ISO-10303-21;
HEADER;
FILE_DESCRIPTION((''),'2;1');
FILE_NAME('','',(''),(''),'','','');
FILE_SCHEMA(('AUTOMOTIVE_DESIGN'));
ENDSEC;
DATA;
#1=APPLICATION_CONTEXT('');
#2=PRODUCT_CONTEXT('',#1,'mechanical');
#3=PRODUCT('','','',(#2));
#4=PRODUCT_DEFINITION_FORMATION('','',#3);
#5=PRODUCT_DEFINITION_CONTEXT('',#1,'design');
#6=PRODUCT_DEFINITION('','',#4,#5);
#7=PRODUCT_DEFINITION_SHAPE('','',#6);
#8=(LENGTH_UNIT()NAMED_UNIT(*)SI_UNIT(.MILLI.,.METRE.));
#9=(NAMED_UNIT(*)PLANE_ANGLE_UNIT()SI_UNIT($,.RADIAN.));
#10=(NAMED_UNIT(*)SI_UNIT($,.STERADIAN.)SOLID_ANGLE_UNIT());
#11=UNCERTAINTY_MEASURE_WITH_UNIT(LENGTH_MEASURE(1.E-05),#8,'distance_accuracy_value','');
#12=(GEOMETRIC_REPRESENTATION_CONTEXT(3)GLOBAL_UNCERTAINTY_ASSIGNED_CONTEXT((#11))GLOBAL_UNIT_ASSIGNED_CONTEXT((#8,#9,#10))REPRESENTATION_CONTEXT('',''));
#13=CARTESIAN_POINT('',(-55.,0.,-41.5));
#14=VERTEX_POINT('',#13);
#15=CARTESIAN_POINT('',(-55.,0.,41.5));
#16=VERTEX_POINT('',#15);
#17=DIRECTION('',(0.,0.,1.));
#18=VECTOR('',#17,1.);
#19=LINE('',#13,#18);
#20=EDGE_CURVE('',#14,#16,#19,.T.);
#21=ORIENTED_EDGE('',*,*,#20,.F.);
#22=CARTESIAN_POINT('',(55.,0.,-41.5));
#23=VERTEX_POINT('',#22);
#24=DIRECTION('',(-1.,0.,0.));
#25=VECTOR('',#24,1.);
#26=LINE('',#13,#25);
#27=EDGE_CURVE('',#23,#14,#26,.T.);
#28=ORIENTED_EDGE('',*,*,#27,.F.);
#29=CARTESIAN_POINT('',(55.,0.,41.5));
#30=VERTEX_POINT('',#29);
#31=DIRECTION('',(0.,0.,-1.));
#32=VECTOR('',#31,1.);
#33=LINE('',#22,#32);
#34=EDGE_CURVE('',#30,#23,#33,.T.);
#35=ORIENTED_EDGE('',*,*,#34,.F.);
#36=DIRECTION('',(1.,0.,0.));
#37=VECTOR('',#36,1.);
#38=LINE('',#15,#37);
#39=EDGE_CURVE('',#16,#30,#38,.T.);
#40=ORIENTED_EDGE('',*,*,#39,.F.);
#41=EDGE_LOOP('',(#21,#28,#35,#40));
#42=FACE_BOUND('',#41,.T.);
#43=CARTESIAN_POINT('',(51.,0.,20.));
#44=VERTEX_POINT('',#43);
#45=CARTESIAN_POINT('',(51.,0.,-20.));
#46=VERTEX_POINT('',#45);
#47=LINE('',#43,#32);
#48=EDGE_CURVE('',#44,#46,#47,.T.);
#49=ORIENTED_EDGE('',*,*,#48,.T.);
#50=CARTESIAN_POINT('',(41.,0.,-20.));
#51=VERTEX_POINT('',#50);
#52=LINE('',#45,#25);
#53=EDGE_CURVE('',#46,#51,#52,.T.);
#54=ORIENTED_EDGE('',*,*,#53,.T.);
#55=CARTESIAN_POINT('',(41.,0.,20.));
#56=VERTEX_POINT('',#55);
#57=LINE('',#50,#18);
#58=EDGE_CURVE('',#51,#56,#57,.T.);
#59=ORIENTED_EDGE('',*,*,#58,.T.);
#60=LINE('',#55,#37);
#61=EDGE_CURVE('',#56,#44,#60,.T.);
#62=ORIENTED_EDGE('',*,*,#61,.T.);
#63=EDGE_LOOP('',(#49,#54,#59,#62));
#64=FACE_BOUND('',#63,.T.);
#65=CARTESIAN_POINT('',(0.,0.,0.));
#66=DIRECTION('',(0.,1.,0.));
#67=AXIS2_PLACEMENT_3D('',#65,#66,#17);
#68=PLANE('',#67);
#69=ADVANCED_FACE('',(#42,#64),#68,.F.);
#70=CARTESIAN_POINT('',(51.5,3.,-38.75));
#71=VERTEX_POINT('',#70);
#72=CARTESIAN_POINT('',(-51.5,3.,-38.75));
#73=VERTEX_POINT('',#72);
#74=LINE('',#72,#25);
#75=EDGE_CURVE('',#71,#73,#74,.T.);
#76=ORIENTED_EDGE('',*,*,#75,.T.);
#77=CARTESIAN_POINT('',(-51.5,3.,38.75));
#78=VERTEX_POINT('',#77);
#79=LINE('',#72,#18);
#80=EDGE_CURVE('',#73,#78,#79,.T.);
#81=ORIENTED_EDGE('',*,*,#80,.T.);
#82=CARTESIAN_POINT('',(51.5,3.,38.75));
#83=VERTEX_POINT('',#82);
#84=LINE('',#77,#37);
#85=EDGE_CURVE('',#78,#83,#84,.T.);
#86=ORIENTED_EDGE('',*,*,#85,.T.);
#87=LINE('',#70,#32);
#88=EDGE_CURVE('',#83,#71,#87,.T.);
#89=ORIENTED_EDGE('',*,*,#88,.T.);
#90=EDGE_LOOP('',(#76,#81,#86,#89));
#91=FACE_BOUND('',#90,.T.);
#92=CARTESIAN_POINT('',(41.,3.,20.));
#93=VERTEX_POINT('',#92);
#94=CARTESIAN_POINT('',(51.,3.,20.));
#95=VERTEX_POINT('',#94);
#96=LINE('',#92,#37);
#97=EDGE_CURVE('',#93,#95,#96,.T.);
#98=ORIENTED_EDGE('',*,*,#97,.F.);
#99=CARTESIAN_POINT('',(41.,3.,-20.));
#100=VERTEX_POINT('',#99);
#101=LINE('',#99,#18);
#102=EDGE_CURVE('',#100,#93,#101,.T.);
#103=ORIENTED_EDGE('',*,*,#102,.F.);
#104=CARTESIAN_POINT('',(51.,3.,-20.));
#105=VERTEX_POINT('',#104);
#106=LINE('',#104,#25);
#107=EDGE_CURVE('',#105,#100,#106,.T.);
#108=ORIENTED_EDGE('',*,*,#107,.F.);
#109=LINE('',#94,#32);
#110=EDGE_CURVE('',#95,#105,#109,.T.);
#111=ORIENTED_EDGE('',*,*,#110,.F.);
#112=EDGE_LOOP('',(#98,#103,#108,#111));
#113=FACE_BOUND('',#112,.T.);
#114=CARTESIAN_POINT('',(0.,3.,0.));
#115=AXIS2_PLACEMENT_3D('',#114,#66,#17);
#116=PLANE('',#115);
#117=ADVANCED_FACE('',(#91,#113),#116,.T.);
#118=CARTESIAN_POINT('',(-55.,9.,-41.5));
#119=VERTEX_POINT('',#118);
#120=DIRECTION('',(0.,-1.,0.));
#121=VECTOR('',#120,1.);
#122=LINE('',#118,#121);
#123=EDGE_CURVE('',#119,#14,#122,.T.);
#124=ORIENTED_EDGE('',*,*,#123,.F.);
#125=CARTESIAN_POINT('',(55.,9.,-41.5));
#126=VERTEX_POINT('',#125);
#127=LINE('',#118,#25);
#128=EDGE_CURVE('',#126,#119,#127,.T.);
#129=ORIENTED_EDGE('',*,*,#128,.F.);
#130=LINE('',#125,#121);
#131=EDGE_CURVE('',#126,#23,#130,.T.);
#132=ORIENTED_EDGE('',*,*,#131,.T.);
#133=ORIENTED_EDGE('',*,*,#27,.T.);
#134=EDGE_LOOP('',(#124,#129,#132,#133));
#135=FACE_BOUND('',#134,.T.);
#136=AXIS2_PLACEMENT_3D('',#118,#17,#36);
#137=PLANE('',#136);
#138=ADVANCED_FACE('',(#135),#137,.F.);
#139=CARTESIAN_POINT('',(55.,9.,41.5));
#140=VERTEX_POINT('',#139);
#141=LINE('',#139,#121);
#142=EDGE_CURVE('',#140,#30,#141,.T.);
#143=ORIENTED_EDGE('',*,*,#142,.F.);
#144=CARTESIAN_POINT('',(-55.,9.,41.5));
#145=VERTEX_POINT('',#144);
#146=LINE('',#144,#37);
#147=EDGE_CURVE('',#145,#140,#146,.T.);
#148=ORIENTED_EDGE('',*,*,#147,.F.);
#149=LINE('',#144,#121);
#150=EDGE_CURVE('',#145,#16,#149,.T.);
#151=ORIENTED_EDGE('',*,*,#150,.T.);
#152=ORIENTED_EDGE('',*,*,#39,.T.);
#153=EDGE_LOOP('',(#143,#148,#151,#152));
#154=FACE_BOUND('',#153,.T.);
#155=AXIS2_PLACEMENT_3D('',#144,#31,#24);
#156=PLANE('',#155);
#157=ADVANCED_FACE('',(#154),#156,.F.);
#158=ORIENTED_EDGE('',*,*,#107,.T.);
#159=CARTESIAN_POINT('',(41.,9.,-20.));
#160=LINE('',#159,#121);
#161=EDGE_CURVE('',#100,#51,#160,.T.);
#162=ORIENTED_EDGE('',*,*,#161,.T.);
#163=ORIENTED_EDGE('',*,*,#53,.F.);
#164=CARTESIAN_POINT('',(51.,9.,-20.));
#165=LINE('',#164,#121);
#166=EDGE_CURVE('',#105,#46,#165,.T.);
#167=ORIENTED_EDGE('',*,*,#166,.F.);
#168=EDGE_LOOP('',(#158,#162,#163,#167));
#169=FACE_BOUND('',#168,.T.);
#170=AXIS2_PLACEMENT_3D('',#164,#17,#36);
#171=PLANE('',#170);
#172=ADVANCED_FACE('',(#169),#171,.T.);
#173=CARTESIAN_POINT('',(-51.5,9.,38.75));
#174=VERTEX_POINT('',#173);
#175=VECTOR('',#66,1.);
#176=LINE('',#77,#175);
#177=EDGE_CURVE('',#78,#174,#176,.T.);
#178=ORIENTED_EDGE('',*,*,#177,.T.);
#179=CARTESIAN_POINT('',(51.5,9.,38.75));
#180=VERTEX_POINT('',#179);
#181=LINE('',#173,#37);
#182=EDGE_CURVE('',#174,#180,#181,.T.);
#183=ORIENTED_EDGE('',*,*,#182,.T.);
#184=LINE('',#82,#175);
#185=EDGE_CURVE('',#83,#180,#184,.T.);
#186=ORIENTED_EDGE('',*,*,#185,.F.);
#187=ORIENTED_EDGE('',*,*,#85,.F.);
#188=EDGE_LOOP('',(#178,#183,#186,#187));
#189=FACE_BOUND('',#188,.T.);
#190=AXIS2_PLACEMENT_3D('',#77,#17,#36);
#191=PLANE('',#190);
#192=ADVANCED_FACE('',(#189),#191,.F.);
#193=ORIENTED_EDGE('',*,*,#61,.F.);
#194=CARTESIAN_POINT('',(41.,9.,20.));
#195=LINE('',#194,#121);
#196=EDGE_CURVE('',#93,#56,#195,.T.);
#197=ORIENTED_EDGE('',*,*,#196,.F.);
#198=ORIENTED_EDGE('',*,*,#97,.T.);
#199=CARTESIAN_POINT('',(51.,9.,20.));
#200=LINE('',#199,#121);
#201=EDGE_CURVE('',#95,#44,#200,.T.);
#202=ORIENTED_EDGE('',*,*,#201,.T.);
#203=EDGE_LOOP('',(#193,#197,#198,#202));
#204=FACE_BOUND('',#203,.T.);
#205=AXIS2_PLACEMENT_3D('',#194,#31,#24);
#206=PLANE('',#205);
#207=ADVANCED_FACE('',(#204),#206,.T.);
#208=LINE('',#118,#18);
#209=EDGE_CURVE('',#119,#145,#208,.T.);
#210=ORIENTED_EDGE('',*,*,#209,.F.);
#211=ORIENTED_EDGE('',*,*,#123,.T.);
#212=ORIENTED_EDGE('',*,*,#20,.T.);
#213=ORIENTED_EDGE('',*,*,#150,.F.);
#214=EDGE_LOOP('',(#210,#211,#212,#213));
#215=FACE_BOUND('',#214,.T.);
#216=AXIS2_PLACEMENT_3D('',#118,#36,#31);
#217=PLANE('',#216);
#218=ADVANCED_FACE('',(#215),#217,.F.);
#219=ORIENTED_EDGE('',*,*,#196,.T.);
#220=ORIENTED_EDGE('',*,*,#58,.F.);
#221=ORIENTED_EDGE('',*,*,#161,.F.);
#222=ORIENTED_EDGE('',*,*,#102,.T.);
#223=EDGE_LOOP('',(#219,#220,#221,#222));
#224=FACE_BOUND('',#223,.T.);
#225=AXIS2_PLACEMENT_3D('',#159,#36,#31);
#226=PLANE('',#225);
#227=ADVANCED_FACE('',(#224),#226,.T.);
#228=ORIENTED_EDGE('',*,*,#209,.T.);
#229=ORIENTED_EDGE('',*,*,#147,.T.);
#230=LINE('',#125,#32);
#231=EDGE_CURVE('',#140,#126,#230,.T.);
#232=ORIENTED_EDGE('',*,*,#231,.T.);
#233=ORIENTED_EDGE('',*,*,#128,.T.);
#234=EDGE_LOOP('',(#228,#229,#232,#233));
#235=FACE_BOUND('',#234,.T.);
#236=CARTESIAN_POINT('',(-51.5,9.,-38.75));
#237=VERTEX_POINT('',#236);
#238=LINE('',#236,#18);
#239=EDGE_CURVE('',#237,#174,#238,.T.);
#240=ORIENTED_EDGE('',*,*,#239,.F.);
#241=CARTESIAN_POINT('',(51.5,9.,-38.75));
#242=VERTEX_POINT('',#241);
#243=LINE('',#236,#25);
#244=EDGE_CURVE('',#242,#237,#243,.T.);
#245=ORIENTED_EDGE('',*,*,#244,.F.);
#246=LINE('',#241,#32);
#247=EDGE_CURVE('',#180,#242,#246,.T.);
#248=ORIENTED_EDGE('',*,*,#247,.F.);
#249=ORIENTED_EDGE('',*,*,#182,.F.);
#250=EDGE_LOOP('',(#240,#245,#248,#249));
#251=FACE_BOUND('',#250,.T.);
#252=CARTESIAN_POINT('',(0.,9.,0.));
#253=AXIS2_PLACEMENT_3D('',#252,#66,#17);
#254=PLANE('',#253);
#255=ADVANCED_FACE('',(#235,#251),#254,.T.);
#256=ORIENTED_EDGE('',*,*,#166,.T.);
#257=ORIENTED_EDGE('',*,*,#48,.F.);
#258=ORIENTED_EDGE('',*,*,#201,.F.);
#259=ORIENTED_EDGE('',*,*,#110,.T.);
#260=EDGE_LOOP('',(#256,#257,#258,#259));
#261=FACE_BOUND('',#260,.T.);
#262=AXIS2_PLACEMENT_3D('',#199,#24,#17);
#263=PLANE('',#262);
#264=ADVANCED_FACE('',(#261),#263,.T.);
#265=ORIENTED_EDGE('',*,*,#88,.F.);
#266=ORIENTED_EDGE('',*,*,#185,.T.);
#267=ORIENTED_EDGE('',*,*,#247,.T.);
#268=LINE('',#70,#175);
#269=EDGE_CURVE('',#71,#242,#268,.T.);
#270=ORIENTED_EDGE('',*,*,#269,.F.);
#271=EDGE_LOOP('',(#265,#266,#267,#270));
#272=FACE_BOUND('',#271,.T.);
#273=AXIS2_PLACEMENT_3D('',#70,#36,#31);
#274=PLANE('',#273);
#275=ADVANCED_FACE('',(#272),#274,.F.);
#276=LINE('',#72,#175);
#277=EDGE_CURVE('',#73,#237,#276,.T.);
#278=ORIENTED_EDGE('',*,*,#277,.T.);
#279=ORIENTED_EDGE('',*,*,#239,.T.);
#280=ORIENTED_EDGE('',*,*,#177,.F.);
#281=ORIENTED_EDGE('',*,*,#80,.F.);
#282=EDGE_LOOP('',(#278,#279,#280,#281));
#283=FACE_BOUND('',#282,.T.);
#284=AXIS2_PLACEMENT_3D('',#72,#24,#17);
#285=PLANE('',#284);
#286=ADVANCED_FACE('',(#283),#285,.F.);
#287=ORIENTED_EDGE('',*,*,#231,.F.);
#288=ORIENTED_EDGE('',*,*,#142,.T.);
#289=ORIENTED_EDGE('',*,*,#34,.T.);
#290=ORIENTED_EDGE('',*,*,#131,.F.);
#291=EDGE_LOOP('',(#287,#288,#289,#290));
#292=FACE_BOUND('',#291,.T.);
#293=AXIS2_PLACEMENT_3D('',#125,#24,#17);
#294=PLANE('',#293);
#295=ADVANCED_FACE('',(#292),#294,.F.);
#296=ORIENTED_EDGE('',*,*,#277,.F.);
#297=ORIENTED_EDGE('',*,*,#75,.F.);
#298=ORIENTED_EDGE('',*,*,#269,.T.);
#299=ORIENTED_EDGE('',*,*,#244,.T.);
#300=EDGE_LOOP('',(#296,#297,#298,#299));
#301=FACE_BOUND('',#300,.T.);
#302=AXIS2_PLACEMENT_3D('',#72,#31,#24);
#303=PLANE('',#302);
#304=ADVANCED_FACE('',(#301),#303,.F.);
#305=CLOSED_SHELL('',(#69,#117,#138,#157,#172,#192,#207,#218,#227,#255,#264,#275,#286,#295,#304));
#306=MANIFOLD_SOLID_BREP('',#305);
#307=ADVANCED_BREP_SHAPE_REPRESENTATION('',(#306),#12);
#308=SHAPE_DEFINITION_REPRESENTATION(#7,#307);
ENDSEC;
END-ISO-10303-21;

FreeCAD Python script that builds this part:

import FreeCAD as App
import Part
import Sketcher
Q = App.Units.Quantity


def add_polygon(sketch, points):
    """Adds a closed chain of lines whose ends are joined by coincident constraints."""
    first, n = sketch.GeometryCount, len(points)
    for a, b in zip(points, points[1:] + points[:1]):
        sketch.addGeometry(Part.LineSegment(App.Vector(*a, 0), App.Vector(*b, 0)), False)
    for i in range(n):
        sketch.addConstraint(Sketcher.Constraint("Coincident", first + i, 2, first + (i + 1) % n, 1))

doc = App.newDocument("Part")
body = doc.addObject("PartDesign::Body", "Body")

# Sketch on XZ plane
sketch1 = body.newObject("Sketcher::SketchObject", "Sketch")
sketch1.AttachmentSupport = (doc.getObject("XZ_Plane"), [""])
sketch1.MapMode = "FlatFace"
add_polygon(sketch1, [(-55, -42), (-55, 42), (55, 42), (55, -42)])  # lines 0-3
add_polygon(sketch1, [(51, 20), (41, 20), (41, -20), (51, -20)])  # lines 4-7
sketch1.addConstraint(Sketcher.Constraint("Vertical", 0))
sketch1.addConstraint(Sketcher.Constraint("Horizontal", 1))
sketch1.addConstraint(Sketcher.Constraint("Vertical", 2))
sketch1.addConstraint(Sketcher.Constraint("Horizontal", 3))
sketch1.addConstraint(Sketcher.Constraint("Horizontal", 4))
sketch1.addConstraint(Sketcher.Constraint("Vertical", 5))
sketch1.addConstraint(Sketcher.Constraint("Horizontal", 6))
sketch1.addConstraint(Sketcher.Constraint("Vertical", 7))
sketch1.addConstraint(Sketcher.Constraint("Symmetric", 0, 2, 2, 2, -1, 1))
sketch1.addConstraint(Sketcher.Constraint("DistanceX", 1, 1, 1, 2, Q("110 mm")))
sketch1.addConstraint(Sketcher.Constraint("DistanceX", 4, 2, 4, 1, Q("10 mm")))
sketch1.addConstraint(Sketcher.Constraint("DistanceY", 0, 1, 0, 2, Q("83 mm")))
sketch1.addConstraint(Sketcher.Constraint("DistanceY", 5, 2, 5, 1, Q("40 mm")))
sketch1.addConstraint(Sketcher.Constraint("DistanceX", -1, 1, 4, 2, Q("41 mm")))
sketch1.addConstraint(Sketcher.Constraint("DistanceY", -1, 1, 4, 2, Q("20 mm")))
pad1 = body.newObject("PartDesign::Pad", "Pad")
pad1.Profile = sketch1
pad1.Length = 9
pad1.Reversed = True

# Sketch on XZ plane
sketch2 = body.newObject("Sketcher::SketchObject", "Sketch001")
sketch2.AttachmentSupport = (doc.getObject("XZ_Plane"), [""])
sketch2.MapMode = "FlatFace"
sketch2.AttachmentOffset = App.Placement(App.Vector(0, 0, -9), App.Rotation())
add_polygon(sketch2, [(-52, -39), (-52, 39), (52, 39), (52, -39)])  # lines 0-3
sketch2.addConstraint(Sketcher.Constraint("Vertical", 0))
sketch2.addConstraint(Sketcher.Constraint("Horizontal", 1))
sketch2.addConstraint(Sketcher.Constraint("Vertical", 2))
sketch2.addConstraint(Sketcher.Constraint("Horizontal", 3))
sketch2.addConstraint(Sketcher.Constraint("Symmetric", 0, 2, 2, 2, -1, 1))
sketch2.addConstraint(Sketcher.Constraint("DistanceX", 1, 1, 1, 2, Q("103 mm")))
sketch2.addConstraint(Sketcher.Constraint("DistanceY", 0, 1, 0, 2, Q("77.5 mm")))
pocket1 = body.newObject("PartDesign::Pocket", "Pocket")
pocket1.Profile = sketch2
pocket1.Length = 6
pocket1.Reversed = True

doc.recompute()
